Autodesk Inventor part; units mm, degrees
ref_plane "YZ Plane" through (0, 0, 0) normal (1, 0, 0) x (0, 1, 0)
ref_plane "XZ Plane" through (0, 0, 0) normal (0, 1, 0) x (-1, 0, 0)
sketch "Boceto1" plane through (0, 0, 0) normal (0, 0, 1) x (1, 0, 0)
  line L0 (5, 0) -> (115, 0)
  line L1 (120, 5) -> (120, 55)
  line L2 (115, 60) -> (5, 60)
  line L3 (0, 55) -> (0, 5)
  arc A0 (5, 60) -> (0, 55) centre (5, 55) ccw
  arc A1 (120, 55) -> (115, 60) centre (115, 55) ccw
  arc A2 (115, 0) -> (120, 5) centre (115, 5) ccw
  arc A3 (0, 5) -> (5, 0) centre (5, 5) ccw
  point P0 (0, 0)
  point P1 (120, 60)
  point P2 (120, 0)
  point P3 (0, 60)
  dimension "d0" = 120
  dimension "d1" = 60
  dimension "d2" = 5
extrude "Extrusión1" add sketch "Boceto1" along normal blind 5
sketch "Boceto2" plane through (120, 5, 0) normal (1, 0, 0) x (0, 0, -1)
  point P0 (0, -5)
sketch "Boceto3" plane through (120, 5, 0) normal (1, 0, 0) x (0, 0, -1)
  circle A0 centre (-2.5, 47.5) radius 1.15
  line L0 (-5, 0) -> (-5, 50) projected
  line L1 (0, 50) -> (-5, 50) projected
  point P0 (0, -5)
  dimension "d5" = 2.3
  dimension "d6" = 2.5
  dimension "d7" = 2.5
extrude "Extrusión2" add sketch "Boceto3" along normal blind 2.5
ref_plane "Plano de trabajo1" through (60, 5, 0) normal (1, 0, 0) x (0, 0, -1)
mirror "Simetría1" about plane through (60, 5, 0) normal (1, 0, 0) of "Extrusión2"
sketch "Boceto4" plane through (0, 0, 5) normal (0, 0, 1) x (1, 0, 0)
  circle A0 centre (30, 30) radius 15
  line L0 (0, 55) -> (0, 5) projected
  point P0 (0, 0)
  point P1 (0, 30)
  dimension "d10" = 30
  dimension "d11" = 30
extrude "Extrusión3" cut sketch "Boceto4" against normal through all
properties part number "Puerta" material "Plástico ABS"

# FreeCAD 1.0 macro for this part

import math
import FreeCAD as App
import Part
import Sketcher
from FreeCAD import Vector
Q = App.Units.Quantity

doc = App.newDocument("Part")
body = doc.addObject("PartDesign::Body", "Body")

# Sketch on XY plane
sketch1 = body.newObject("Sketcher::SketchObject", "Sketch")
sketch1.AttachmentSupport = (doc.getObject("XY_Plane"), [""])
sketch1.MapMode = "FlatFace"
sketch1.addGeometry([
    Part.ArcOfCircle(Part.Circle(Vector(5, 5, 0), Vector(0, 0, 1), 5), math.radians(180), math.radians(270)),  # 0
    Part.LineSegment(Vector(5, 0, 0), Vector(115, 0, 0)),  # 1
    Part.ArcOfCircle(Part.Circle(Vector(115, 5, 0), Vector(0, 0, 1), 5), math.radians(-90), math.radians(0)),  # 2
    Part.LineSegment(Vector(120, 5, 0), Vector(120, 55, 0)),  # 3
    Part.ArcOfCircle(Part.Circle(Vector(115, 55, 0), Vector(0, 0, 1), 5), math.radians(0), math.radians(90)),  # 4
    Part.LineSegment(Vector(115, 60, 0), Vector(5, 60, 0)),  # 5
    Part.ArcOfCircle(Part.Circle(Vector(5, 55, 0), Vector(0, 0, 1), 5), math.radians(90), math.radians(180)),  # 6
    Part.LineSegment(Vector(0, 55, 0), Vector(0, 5, 0)),  # 7
], False)
sketch1.addConstraint([
    Sketcher.Constraint("Tangent", 0, 2, 1, 1),
    Sketcher.Constraint("Tangent", 1, 2, 2, 1),
    Sketcher.Constraint("Tangent", 2, 2, 3, 1),
    Sketcher.Constraint("Tangent", 3, 2, 4, 1),
    Sketcher.Constraint("Tangent", 4, 2, 5, 1),
    Sketcher.Constraint("Tangent", 5, 2, 6, 1),
    Sketcher.Constraint("Tangent", 6, 2, 7, 1),
    Sketcher.Constraint("Tangent", 7, 2, 0, 1),
    Sketcher.Constraint("Horizontal", 1),
    Sketcher.Constraint("Vertical", 3),
    Sketcher.Constraint("Horizontal", 5),
    Sketcher.Constraint("Vertical", 7),
    Sketcher.Constraint("Equal", 0, 2),
    Sketcher.Constraint("Equal", 2, 4),
    Sketcher.Constraint("Equal", 4, 6),
    Sketcher.Constraint("PointOnObject", 0, 2, -1),
    Sketcher.Constraint("PointOnObject", 6, 2, -2),
    Sketcher.Constraint("Radius", 0, Q("5 mm")),
    Sketcher.Constraint("DistanceX", -1, 1, 2, 2, Q("120 mm")),
    Sketcher.Constraint("DistanceY", -1, 1, 4, 2, Q("60 mm")),
])
pad1 = body.newObject("PartDesign::Pad", "Pad")
pad1.Profile = sketch1
pad1.Length = 5

# Sketch on YZ plane
sketch2 = body.newObject("Sketcher::SketchObject", "Sketch001")
sketch2.AttachmentSupport = (doc.getObject("YZ_Plane"), [""])
sketch2.MapMode = "FlatFace"
sketch2.AttachmentOffset = App.Placement(Vector(0, 0, 120), App.Rotation())
sketch2.addGeometry(Part.Circle(Vector(52.5, 2.5, 0), Vector(0, 0, 1), 1.1), False)
sketch2.addConstraint([
    Sketcher.Constraint("Diameter", 0, Q("2.3 mm")),
    Sketcher.Constraint("DistanceY", -1, 1, 0, 3, Q("2.5 mm")),
    Sketcher.Constraint("DistanceX", -1, 1, 0, 3, Q("52.5 mm")),
])
pad2 = body.newObject("PartDesign::Pad", "Pad001")
pad2.Profile = sketch2
pad2.Length = 2.5
doc.recompute()

datumplane = body.newObject("PartDesign::Plane", "DatumPlane")
datumplane.AttachmentSupport = (doc.getObject("YZ_Plane"), [""])
datumplane.MapMode = "FlatFace"
datumplane.AttachmentOffset = App.Placement(Vector(0, 0, 60), App.Rotation())
mirrored = body.newObject("PartDesign::Mirrored", "Mirrored")
mirrored.Originals = [pad2]
mirrored.MirrorPlane = (datumplane, [""])
body.Tip = mirrored

# Sketch on XY plane
sketch3 = body.newObject("Sketcher::SketchObject", "Sketch002")
sketch3.AttachmentSupport = (doc.getObject("XY_Plane"), [""])
sketch3.MapMode = "FlatFace"
sketch3.AttachmentOffset = App.Placement(Vector(0, 0, 5), App.Rotation())
sketch3.addGeometry(Part.Circle(Vector(30, 30, 0), Vector(0, 0, 1), 15), False)
sketch3.addConstraint([
    Sketcher.Constraint("Diameter", 0, Q("30 mm")),
    Sketcher.Constraint("DistanceX", -1, 1, 0, 3, Q("30 mm")),
    Sketcher.Constraint("DistanceY", -1, 1, 0, 3, Q("30 mm")),
])
pocket1 = body.newObject("PartDesign::Pocket", "Pocket")
pocket1.Profile = sketch3
pocket1.Type = "ThroughAll"

doc.recompute()
